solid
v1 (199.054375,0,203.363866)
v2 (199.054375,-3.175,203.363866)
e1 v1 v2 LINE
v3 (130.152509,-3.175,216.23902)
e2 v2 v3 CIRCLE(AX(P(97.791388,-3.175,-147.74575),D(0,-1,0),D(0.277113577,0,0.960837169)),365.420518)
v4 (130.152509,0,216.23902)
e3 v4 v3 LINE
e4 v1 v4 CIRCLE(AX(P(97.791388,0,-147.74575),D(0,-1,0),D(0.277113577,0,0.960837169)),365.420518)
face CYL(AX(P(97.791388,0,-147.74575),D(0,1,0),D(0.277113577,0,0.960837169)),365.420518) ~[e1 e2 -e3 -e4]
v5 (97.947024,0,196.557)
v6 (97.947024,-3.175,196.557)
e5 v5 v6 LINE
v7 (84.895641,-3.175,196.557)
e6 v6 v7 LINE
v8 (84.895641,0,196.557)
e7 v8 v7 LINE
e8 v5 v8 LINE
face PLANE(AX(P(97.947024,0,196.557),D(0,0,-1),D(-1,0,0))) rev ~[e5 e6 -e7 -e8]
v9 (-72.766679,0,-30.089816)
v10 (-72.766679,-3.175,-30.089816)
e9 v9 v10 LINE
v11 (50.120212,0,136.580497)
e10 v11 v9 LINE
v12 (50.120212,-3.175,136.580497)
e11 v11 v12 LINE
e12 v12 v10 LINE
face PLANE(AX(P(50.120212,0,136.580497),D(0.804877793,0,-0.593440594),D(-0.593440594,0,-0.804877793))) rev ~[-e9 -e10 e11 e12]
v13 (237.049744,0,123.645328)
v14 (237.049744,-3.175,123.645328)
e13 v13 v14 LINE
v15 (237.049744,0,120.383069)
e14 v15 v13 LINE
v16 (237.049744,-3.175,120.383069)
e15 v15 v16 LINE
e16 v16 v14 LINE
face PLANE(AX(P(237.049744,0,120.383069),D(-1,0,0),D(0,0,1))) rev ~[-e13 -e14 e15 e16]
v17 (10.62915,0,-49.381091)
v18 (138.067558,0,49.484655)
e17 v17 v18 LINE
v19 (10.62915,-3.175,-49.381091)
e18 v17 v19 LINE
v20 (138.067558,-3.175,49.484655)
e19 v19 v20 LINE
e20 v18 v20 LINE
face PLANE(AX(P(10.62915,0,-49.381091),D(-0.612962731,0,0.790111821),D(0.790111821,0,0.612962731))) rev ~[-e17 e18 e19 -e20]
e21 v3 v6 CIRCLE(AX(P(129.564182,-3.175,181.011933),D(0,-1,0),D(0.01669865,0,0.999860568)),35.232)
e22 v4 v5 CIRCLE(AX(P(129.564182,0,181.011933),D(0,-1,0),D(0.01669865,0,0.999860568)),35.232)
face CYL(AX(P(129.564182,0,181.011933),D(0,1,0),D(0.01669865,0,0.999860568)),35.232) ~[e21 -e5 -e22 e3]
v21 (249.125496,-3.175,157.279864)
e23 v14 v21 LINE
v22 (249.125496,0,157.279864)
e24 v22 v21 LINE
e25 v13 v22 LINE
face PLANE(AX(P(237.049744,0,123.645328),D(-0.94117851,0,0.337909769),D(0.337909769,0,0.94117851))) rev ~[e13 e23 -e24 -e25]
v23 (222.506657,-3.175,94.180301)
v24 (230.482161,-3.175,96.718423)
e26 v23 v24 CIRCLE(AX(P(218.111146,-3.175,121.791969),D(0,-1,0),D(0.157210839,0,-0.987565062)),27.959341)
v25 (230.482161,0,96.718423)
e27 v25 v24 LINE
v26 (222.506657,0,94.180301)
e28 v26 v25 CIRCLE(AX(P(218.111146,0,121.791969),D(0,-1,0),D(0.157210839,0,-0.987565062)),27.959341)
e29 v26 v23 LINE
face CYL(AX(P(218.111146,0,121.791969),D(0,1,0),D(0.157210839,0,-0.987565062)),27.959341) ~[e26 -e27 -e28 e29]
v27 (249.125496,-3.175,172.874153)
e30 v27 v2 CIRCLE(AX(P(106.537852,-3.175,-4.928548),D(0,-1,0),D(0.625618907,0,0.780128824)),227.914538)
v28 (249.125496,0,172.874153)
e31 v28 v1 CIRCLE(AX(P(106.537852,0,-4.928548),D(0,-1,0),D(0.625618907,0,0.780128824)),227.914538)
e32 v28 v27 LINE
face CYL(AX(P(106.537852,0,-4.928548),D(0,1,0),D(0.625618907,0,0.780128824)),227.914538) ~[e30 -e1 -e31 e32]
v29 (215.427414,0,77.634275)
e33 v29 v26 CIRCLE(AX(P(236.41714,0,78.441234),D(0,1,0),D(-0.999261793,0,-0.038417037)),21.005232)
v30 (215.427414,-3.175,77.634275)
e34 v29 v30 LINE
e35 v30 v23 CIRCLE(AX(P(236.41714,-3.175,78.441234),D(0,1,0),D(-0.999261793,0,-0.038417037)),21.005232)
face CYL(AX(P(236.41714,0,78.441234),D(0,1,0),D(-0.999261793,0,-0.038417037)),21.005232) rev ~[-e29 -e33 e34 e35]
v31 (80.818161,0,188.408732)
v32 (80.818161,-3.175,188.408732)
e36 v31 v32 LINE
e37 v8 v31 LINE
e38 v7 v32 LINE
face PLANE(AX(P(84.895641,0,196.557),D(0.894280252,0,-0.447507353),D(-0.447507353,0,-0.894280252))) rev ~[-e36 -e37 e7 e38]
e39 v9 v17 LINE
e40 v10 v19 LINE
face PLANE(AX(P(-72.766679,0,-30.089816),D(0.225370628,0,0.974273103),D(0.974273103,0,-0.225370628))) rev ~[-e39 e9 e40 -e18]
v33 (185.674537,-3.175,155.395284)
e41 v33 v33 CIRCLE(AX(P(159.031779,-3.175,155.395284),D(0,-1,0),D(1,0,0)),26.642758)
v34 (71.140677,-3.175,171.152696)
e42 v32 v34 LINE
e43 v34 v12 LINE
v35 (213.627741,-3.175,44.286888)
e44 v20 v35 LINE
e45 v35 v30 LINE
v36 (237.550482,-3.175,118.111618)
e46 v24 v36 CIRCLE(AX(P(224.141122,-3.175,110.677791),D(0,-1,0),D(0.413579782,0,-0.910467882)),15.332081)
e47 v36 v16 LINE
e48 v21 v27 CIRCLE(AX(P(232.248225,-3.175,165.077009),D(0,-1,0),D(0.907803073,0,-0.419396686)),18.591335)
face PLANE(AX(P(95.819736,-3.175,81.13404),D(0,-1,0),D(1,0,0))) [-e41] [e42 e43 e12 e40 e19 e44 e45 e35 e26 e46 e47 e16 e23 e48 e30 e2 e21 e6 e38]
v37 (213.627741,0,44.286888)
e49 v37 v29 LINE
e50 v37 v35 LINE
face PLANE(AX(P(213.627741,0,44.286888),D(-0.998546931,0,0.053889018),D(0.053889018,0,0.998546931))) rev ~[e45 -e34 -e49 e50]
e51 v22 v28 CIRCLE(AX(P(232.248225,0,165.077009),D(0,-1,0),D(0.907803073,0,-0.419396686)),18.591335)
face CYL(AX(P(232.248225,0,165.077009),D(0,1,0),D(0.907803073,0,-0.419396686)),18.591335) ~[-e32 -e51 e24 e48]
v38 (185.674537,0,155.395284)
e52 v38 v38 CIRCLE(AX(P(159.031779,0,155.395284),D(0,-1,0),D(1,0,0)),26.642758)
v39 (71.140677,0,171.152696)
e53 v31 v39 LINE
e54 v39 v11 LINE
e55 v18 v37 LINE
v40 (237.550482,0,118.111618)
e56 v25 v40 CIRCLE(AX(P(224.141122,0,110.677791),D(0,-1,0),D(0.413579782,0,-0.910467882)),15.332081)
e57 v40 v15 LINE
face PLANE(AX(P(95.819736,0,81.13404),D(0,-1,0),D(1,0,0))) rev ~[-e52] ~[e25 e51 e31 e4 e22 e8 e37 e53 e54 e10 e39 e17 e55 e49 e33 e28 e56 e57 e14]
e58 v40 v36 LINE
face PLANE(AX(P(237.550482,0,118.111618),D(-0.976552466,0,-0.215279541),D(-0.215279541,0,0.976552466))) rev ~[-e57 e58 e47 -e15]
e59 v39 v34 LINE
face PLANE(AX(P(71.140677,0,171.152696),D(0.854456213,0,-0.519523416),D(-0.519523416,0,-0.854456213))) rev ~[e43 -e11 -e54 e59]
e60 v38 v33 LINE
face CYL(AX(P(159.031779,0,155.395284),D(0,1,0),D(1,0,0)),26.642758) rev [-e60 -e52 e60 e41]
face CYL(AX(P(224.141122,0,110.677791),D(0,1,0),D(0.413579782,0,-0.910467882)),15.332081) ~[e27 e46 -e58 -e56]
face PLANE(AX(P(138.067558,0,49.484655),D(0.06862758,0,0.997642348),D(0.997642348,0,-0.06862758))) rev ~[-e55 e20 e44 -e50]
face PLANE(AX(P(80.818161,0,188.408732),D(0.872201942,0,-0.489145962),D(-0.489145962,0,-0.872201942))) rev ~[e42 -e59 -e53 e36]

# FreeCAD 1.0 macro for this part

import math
import FreeCAD as App
import Part
import Sketcher
Q = App.Units.Quantity

doc = App.newDocument("Part")
body = doc.addObject("PartDesign::Body", "Body")

sketch1 = body.newObject("Sketcher::SketchObject", "Sketch")
sketch1.AttachmentSupport = (doc.getObject("XZ_Plane"), [""])
sketch1.MapMode = "FlatFace"
sketch1.addGeometry(Part.LineSegment(App.Vector(-72.766679, -30.089816, 0), App.Vector(10.62915, -49.381091, 0)), False)
sketch1.addGeometry(Part.LineSegment(App.Vector(10.62915, -49.381091, 0), App.Vector(138.067558, 49.484655, 0)), False)
sketch1.addGeometry(Part.LineSegment(App.Vector(138.067558, 49.484655, 0), App.Vector(213.627741, 44.286888, 0)), False)
sketch1.addGeometry(Part.LineSegment(App.Vector(213.627741, 44.286888, 0), App.Vector(215.427414, 77.634275, 0)), False)
sketch1.addGeometry(Part.ArcOfCircle(Part.Circle(App.Vector(236.41714, 78.441234, 0), App.Vector(0, 0, 1), 21.005232), math.radians(131.470852), math.radians(182.201676)), False)
sketch1.addGeometry(Part.ArcOfCircle(Part.Circle(App.Vector(218.111146, 121.791969, 0), App.Vector(0, 0, 1), 27.959341), math.radians(-80.95496), math.radians(-63.738769)), False)
sketch1.addGeometry(Part.ArcOfCircle(Part.Circle(App.Vector(224.141122, 110.677791, 0), App.Vector(0, 0, 1), 15.332081), math.radians(-65.57009), math.radians(29.002934)), False)
sketch1.addGeometry(Part.LineSegment(App.Vector(237.550482, 118.111618, 0), App.Vector(237.049744, 120.383069, 0)), False)
sketch1.addGeometry(Part.LineSegment(App.Vector(237.049744, 120.383069, 0), App.Vector(237.049744, 123.645328, 0)), False)
sketch1.addGeometry(Part.LineSegment(App.Vector(237.049744, 123.645328, 0), App.Vector(249.125496, 157.279864, 0)), False)
sketch1.addGeometry(Part.ArcOfCircle(Part.Circle(App.Vector(232.248225, 165.077009, 0), App.Vector(0, 0, 1), 18.591335), math.radians(-24.796504), math.radians(24.796504)), False)
sketch1.addGeometry(Part.ArcOfCircle(Part.Circle(App.Vector(106.537852, -4.928548, 0), App.Vector(0, 0, 1), 227.914538), math.radians(51.272372), math.radians(66.050808)), False)
sketch1.addGeometry(Part.ArcOfCircle(Part.Circle(App.Vector(97.791388, -147.74575, 0), App.Vector(0, 0, 1), 365.420518), math.radians(73.911991), math.radians(84.919312)), False)
sketch1.addGeometry(Part.ArcOfCircle(Part.Circle(App.Vector(129.564182, 181.011933, 0), App.Vector(0, 0, 1), 35.232), math.radians(89.043193), math.radians(153.818244)), False)
sketch1.addGeometry(Part.LineSegment(App.Vector(97.947024, 196.557, 0), App.Vector(84.895641, 196.557, 0)), False)
sketch1.addGeometry(Part.LineSegment(App.Vector(84.895641, 196.557, 0), App.Vector(80.818161, 188.408732, 0)), False)
sketch1.addGeometry(Part.LineSegment(App.Vector(80.818161, 188.408732, 0), App.Vector(71.140677, 171.152696, 0)), False)
sketch1.addGeometry(Part.LineSegment(App.Vector(71.140677, 171.152696, 0), App.Vector(50.120212, 136.580497, 0)), False)
sketch1.addGeometry(Part.LineSegment(App.Vector(50.120212, 136.580497, 0), App.Vector(-72.766679, -30.089816, 0)), False)
sketch1.addGeometry(Part.Circle(App.Vector(159.031779, 155.395284, 0), App.Vector(0, 0, 1), 26.642758), False)
sketch1.addConstraint(Sketcher.Constraint("Coincident", 0, 2, 1, 1))
sketch1.addConstraint(Sketcher.Constraint("Coincident", 1, 2, 2, 1))
sketch1.addConstraint(Sketcher.Constraint("Coincident", 2, 2, 3, 1))
sketch1.addConstraint(Sketcher.Constraint("Coincident", 3, 2, 4, 2))
sketch1.addConstraint(Sketcher.Constraint("Coincident", 4, 1, 5, 1))
sketch1.addConstraint(Sketcher.Constraint("Coincident", 5, 2, 6, 1))
sketch1.addConstraint(Sketcher.Constraint("Coincident", 6, 2, 7, 1))
sketch1.addConstraint(Sketcher.Constraint("Coincident", 7, 2, 8, 1))
sketch1.addConstraint(Sketcher.Constraint("Coincident", 8, 2, 9, 1))
sketch1.addConstraint(Sketcher.Constraint("Coincident", 9, 2, 10, 1))
sketch1.addConstraint(Sketcher.Constraint("Coincident", 10, 2, 11, 1))
sketch1.addConstraint(Sketcher.Constraint("Coincident", 11, 2, 12, 1))
sketch1.addConstraint(Sketcher.Constraint("Coincident", 12, 2, 13, 1))
sketch1.addConstraint(Sketcher.Constraint("Coincident", 13, 2, 14, 1))
sketch1.addConstraint(Sketcher.Constraint("Coincident", 14, 2, 15, 1))
sketch1.addConstraint(Sketcher.Constraint("Coincident", 15, 2, 16, 1))
sketch1.addConstraint(Sketcher.Constraint("Coincident", 16, 2, 17, 1))
sketch1.addConstraint(Sketcher.Constraint("Coincident", 17, 2, 18, 1))
sketch1.addConstraint(Sketcher.Constraint("Coincident", 18, 2, 0, 1))
sketch1.addConstraint(Sketcher.Constraint("Vertical", 8))
sketch1.addConstraint(Sketcher.Constraint("Horizontal", 14))
sketch1.addConstraint(Sketcher.Constraint("Vertical", 9, 2, 10, 2))
sketch1.addConstraint(Sketcher.Constraint("Distance", 0, Q("3.37 in")))
sketch1.addConstraint(Sketcher.Constraint("Radius", 13, 35.232))
sketch1.addConstraint(Sketcher.Constraint("Radius", 4, 21.005232))
sketch1.addConstraint(Sketcher.Constraint("Radius", 5, 27.959341))
sketch1.addConstraint(Sketcher.Constraint("Radius", 6, 15.332081))
sketch1.addConstraint(Sketcher.Constraint("Radius", 11, 227.914538))
sketch1.addConstraint(Sketcher.Constraint("Radius", 12, 365.420518))
sketch1.addConstraint(Sketcher.Constraint("Diameter", 19, 53.285516))
sketch1.addConstraint(Sketcher.Constraint("Radius", 10, 18.591335))
sketch1.addConstraint(Sketcher.Constraint("DistanceY", 0, 2, 11, 3, Q("1.7501001 in")))
sketch1.addConstraint(Sketcher.Constraint("DistanceY", 8, 1, 8, 2, 3.262259))
sketch1.addConstraint(Sketcher.Constraint("DistanceY", -1, 1, 4, 1, 94.180301))
sketch1.addConstraint(Sketcher.Constraint("DistanceY", -1, 1, 13, 2, 196.557))
sketch1.addConstraint(Sketcher.Constraint("DistanceY", 4, 3, 13, 3, 102.570699))
sketch1.addConstraint(Sketcher.Constraint("DistanceX", 0, 2, 11, 3, 95.908702))
sketch1.addConstraint(Sketcher.Constraint("DistanceX", 2, 2, 4, 3, 22.789399))
sketch1.addConstraint(Sketcher.Constraint("DistanceX", 5, 3, 7, 2, 18.938598))
sketch1.addConstraint(Sketcher.Constraint("DistanceY", 7, 2, 5, 3, 1.4089))
sketch1.addConstraint(Sketcher.Constraint("DistanceX", 13, 2, 10, 3, 134.301201))
sketch1.addConstraint(Sketcher.Constraint("DistanceY", 13, 3, 15, 2, 7.396799))
sketch1.addConstraint(Sketcher.Constraint("DistanceY", 17, 2, 16, 2, 34.572199))
sketch1.addConstraint(Sketcher.Constraint("Distance", 1, 161.29161))
sketch1.addConstraint(Sketcher.Constraint("Distance", 2, 75.738749))
sketch1.addConstraint(Sketcher.Constraint("Distance", 7, 2.32599))
sketch1.addConstraint(Sketcher.Constraint("Distance", 16, 19.78445))
sketch1.addConstraint(Sketcher.Constraint("DistanceX", 14, 2, 14, 1, 13.051383))
sketch1.addConstraint(Sketcher.Constraint("DistanceX", -1, 1, 4, 3, 236.41714))
sketch1.addConstraint(Sketcher.Constraint("DistanceY", -1, 1, 5, 3, 121.791969))
sketch1.addConstraint(Sketcher.Constraint("DistanceY", -1, 1, 6, 3, 110.677791))
sketch1.addConstraint(Sketcher.Constraint("DistanceY", -1, 1, 10, 3, 165.077009))
sketch1.addConstraint(Sketcher.Constraint("DistanceX", -1, 1, 11, 3, 106.537852))
sketch1.addConstraint(Sketcher.Constraint("DistanceX", -1, 1, 12, 3, 97.791388))
sketch1.addConstraint(Sketcher.Constraint("DistanceY", 12, 3, -1, 1, 147.74575))
sketch1.addConstraint(Sketcher.Constraint("DistanceX", -1, 1, 19, 3, 159.031779))
sketch1.addConstraint(Sketcher.Constraint("DistanceY", 0, 2, -1, 1, 49.381091))
sketch1.addConstraint(Sketcher.Constraint("DistanceX", -1, 1, 1, 2, 138.067558))
sketch1.addConstraint(Sketcher.Constraint("DistanceX", -1, 1, 5, 2, 230.482161))
sketch1.addConstraint(Sketcher.Constraint("DistanceX", -1, 1, 6, 2, 237.550482))
sketch1.addConstraint(Sketcher.Constraint("DistanceX", -1, 1, 14, 2, 84.895641))
sketch1.addConstraint(Sketcher.Constraint("DistanceX", -1, 1, 15, 2, 80.818161))
sketch1.addConstraint(Sketcher.Constraint("DistanceX", 18, 2, -1, 1, 72.766679))
sketch1.addConstraint(Sketcher.Constraint("DistanceY", 19, 3, 13, 3, 25.616649))
sketch1.addConstraint(Sketcher.Constraint("DistanceY", 3, 2, 4, 3, 0.806959))
sketch1.addConstraint(Sketcher.Constraint("DistanceX", 17, 2, 15, 2, 30.697949))
sketch1.addConstraint(Sketcher.Constraint("Distance", 17, 40.461054))
pad1 = body.newObject("PartDesign::Pad", "Pad")
pad1.Profile = sketch1
pad1.Length = Q("0.125 in")

doc.recompute()
